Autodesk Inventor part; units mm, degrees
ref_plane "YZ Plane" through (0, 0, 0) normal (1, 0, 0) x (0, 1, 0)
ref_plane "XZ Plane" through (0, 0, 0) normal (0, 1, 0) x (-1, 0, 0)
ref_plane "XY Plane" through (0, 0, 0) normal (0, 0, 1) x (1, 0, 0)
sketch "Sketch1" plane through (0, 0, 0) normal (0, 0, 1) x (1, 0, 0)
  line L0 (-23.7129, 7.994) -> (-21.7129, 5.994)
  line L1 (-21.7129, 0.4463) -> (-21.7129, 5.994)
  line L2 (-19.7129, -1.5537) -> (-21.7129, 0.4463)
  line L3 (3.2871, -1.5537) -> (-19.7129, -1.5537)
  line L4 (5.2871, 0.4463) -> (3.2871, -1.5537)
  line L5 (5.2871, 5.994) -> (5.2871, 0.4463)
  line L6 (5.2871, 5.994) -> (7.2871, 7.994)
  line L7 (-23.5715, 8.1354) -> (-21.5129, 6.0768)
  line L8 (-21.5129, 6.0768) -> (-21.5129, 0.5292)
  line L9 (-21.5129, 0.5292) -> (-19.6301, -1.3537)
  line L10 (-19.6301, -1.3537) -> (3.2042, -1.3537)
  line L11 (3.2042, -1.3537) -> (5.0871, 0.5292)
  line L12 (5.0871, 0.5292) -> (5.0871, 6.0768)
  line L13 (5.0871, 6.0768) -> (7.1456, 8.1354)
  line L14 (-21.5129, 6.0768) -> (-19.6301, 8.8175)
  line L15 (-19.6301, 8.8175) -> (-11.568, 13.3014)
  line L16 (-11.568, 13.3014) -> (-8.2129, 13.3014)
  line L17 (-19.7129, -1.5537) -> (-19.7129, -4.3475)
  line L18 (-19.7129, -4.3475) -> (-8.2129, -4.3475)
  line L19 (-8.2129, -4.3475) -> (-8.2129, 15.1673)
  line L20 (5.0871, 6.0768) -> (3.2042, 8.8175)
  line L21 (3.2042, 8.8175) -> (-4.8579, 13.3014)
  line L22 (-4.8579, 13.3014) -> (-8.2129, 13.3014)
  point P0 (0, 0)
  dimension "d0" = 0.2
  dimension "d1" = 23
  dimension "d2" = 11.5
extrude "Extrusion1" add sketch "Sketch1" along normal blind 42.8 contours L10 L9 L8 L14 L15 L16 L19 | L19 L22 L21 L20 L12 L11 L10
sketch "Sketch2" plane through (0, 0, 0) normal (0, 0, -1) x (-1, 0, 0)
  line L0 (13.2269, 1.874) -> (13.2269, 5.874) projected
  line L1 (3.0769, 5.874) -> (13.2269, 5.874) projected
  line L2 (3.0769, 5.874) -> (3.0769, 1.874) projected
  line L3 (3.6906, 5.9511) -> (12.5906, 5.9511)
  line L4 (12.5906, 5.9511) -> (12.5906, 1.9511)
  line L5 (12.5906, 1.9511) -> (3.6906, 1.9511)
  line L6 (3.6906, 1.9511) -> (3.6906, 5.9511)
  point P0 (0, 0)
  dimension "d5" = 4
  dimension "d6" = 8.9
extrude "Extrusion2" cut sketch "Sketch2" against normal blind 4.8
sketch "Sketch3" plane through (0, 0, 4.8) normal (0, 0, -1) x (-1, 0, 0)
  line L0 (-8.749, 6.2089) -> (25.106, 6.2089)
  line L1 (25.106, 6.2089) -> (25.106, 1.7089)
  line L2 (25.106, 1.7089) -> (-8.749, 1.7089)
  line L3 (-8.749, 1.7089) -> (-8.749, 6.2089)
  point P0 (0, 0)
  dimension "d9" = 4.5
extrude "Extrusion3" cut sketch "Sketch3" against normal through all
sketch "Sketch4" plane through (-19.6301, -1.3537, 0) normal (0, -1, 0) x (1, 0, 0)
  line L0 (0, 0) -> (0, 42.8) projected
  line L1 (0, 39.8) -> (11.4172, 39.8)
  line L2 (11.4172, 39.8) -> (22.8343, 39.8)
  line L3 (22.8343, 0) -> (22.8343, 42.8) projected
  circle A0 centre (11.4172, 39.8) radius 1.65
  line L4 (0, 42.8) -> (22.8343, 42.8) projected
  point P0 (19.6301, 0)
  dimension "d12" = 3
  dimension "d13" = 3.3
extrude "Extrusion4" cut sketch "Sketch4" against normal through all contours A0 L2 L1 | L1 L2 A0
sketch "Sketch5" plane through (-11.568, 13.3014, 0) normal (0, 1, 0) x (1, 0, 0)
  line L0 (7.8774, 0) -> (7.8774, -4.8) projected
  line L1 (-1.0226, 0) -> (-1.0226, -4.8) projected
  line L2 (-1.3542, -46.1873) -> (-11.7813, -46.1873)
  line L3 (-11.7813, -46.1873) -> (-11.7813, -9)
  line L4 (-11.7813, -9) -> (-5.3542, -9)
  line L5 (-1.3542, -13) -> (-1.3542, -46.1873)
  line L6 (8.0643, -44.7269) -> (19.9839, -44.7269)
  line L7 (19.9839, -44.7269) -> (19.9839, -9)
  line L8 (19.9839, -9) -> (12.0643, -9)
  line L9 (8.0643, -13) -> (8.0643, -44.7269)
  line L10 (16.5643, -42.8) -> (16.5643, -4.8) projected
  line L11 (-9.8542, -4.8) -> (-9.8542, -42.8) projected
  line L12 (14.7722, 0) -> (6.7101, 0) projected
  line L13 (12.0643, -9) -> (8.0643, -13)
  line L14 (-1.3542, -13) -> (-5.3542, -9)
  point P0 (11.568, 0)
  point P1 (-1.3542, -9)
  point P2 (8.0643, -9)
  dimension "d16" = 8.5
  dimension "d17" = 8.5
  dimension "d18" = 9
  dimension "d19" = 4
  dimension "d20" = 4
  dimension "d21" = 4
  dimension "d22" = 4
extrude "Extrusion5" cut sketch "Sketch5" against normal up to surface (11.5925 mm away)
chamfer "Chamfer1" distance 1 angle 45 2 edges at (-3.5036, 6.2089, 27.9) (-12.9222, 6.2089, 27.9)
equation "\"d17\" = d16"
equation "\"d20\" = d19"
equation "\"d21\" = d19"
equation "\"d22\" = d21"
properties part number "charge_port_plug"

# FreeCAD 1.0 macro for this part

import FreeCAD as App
import Part
import Sketcher

V = App.Vector
Q = App.Units.Quantity


def edges_at(feature, points):
    """Names of the edges that pass closest to the given points."""
    edges = feature.Shape.Edges
    near = lambda p: min(range(len(edges)), key=lambda i: edges[i].distToShape(Part.Vertex(*p))[0])
    return sorted({f"Edge{near(p) + 1}" for p in points})


def add_polygon(sketch, points):
    """Adds a closed chain of lines whose ends are joined by coincident constraints."""
    first, n = sketch.GeometryCount, len(points)
    for a, b in zip(points, points[1:] + points[:1]):
        sketch.addGeometry(Part.LineSegment(App.Vector(*a, 0), App.Vector(*b, 0)), False)
    for i in range(n):
        sketch.addConstraint(Sketcher.Constraint("Coincident", first + i, 2, first + (i + 1) % n, 1))

doc = App.newDocument("Part")
params = doc.addObject("Spreadsheet::Sheet", "Params")
for row, (alias, value) in enumerate([
    ("sketch1_width", "6.71 mm"),
    ("pad1_length", "42.8 mm"),
    ("sketch2_height", "4 mm"),
    ("sketch2_width", "8.9 mm"),
    ("pocket1_length", "4.8 mm"),
    ("sketch3_height", "4.5 mm"),
    ("sketch4_diameter", "3.3 mm"),
    ("pocket4_length", "11.5925 mm"),
    ("chamfer_size", "1 mm"),
], start=1):
    params.set(f"A{row}", alias)
    params.set(f"B{row}", "=" + value)
    params.setAlias(f"B{row}", alias)

body = doc.addObject("PartDesign::Body", "Body")

# Sketch on XY plane
sketch1 = body.newObject("Sketcher::SketchObject", "Sketch")
sketch1.AttachmentSupport = (doc.getObject("XY_Plane"), [""])
sketch1.MapMode = "FlatFace"
add_polygon(sketch1, [(-19.6, -1.4), (3.2, -1.4), (5.1, 0.5), (5.1, 6.1), (3.2, 8.8), (-4.9, 13.3), (-11.6, 13.3), (-19.6, 8.8), (-21.5, 6.1), (-21.5, 0.5)])  # lines 0-9
sketch1.addConstraint(Sketcher.Constraint("Horizontal", 0))
sketch1.addConstraint(Sketcher.Constraint("Vertical", 2))
sketch1.addConstraint(Sketcher.Constraint("Horizontal", 5))
sketch1.addConstraint(Sketcher.Constraint("Vertical", 8))
sketch1.addConstraint(Sketcher.Constraint("Perpendicular", 1, 9))
sketch1.addConstraint(Sketcher.Constraint("Horizontal", 3, 2, 6, 2))
sketch1.addConstraint(Sketcher.Constraint("Horizontal", 2, 2, 7, 2))
sketch1.addConstraint(Sketcher.Constraint("Horizontal", 1, 2, 8, 2))
sketch1.addConstraint(Sketcher.Constraint("Vertical", 0, 2, 3, 2))
sketch1.addConstraint(Sketcher.Constraint("Vertical", 6, 2, 9, 2))
sketch1.addConstraint(Sketcher.Constraint("Equal", 4, 6))
sketch1.addConstraint(Sketcher.Constraint("Equal", 3, 7))
sketch1.addConstraint(Sketcher.Constraint("DistanceX", 5, 2, 5, 1, 6.71))
sketch1.addConstraint(Sketcher.Constraint("Angle", 3, Q("124.4896 deg")))
sketch1.addConstraint(Sketcher.Constraint("DistanceX", 6, 2, -1, 1, 19.63))
sketch1.addConstraint(Sketcher.Constraint("Distance", 4, 9.225))
sketch1.addConstraint(Sketcher.Constraint("Distance", 7, 3.325))
sketch1.addConstraint(Sketcher.Constraint("DistanceX", 0, 1, 0, 2, 22.8343))
sketch1.addConstraint(Sketcher.Constraint("DistanceY", 2, 1, 2, 2, 5.5476))
sketch1.addConstraint(Sketcher.Constraint("DistanceY", 0, 2, -1, 1, 1.3537))
sketch1.setExpression("Constraints[22]", "Params.sketch1_width")
pad1 = body.newObject("PartDesign::Pad", "Pad")
pad1.Profile = sketch1
pad1.setExpression("Length", "Params.pad1_length")

# Sketch on XY plane
sketch2 = body.newObject("Sketcher::SketchObject", "Sketch001")
sketch2.AttachmentSupport = (doc.getObject("XY_Plane"), [""])
sketch2.MapMode = "FlatFace"
add_polygon(sketch2, [(-3.7, 6), (-3.7, 2), (-12.6, 2), (-12.6, 6)])  # lines 0-3
sketch2.addConstraint(Sketcher.Constraint("Vertical", 0))
sketch2.addConstraint(Sketcher.Constraint("Horizontal", 1))
sketch2.addConstraint(Sketcher.Constraint("Vertical", 2))
sketch2.addConstraint(Sketcher.Constraint("Horizontal", 3))
sketch2.addConstraint(Sketcher.Constraint("DistanceY", 0, 2, 0, 1, 4.0))
sketch2.addConstraint(Sketcher.Constraint("DistanceX", 1, 2, 1, 1, 8.9))
sketch2.addConstraint(Sketcher.Constraint("DistanceY", -1, 1, 0, 2, 1.951))
sketch2.addConstraint(Sketcher.Constraint("DistanceX", 0, 2, -1, 1, 3.6906))
sketch2.setExpression("Constraints[8]", "Params.sketch2_height")
sketch2.setExpression("Constraints[9]", "Params.sketch2_width")
pocket1 = body.newObject("PartDesign::Pocket", "Pocket")
pocket1.Profile = sketch2
pocket1.setExpression("Length", "Params.pocket1_length")
pocket1.Reversed = True

# Sketch on XY plane
sketch3 = body.newObject("Sketcher::SketchObject", "Sketch002")
sketch3.AttachmentSupport = (doc.getObject("XY_Plane"), [""])
sketch3.MapMode = "FlatFace"
sketch3.AttachmentOffset = App.Placement(V(0, 0, 4.8), App.Rotation())
add_polygon(sketch3, [(-25.1, 6.2), (8.7, 6.2), (8.7, 1.7), (-25.1, 1.7)])  # lines 0-3
sketch3.addConstraint(Sketcher.Constraint("Horizontal", 0))
sketch3.addConstraint(Sketcher.Constraint("Vertical", 1))
sketch3.addConstraint(Sketcher.Constraint("Horizontal", 2))
sketch3.addConstraint(Sketcher.Constraint("Vertical", 3))
sketch3.addConstraint(Sketcher.Constraint("DistanceY", 1, 2, 1, 1, 4.5))
sketch3.addConstraint(Sketcher.Constraint("DistanceX", 0, 1, 0, 2, 33.855))
sketch3.addConstraint(Sketcher.Constraint("DistanceX", -1, 1, 0, 2, 8.749))
sketch3.addConstraint(Sketcher.Constraint("DistanceY", -1, 1, 0, 2, 6.209))
sketch3.setExpression("Constraints[8]", "Params.sketch3_height")
pocket2 = body.newObject("PartDesign::Pocket", "Pocket001")
pocket2.Profile = sketch3
pocket2.Type = "ThroughAll"
pocket2.Reversed = True

# Sketch on XZ plane
sketch4 = body.newObject("Sketcher::SketchObject", "Sketch003")
sketch4.AttachmentSupport = (doc.getObject("XZ_Plane"), [""])
sketch4.MapMode = "FlatFace"
sketch4.AttachmentOffset = App.Placement(V(0, 0, 1.3537), App.Rotation())
sketch4.addGeometry(Part.Circle(V(-8.2, 39.8, 0), V(0, 0, 1), 1.6), False)
sketch4.addConstraint(Sketcher.Constraint("Diameter", 0, 3.3))
sketch4.addConstraint(Sketcher.Constraint("DistanceY", -1, 1, 0, 3, 39.8))
sketch4.addConstraint(Sketcher.Constraint("DistanceX", 0, 3, -1, 1, 8.213))
sketch4.setExpression("Constraints[0]", "Params.sketch4_diameter")
pocket3 = body.newObject("PartDesign::Pocket", "Pocket002")
pocket3.Profile = sketch4
pocket3.Type = "ThroughAll"

# Sketch on XZ plane
sketch5 = body.newObject("Sketcher::SketchObject", "Sketch004")
sketch5.AttachmentSupport = (doc.getObject("XZ_Plane"), [""])
sketch5.MapMode = "FlatFace"
sketch5.AttachmentOffset = App.Placement(V(0, 0, -13.3014), App.Rotation())
add_polygon(sketch5, [(-23, 46), (-13, 46), (-13, 13), (-17, 9), (-23, 9)])  # lines 0-4
add_polygon(sketch5, [(-4, 13), (-4, 45), (8, 45), (8, 9), (0, 9)])  # lines 5-9
sketch5.addConstraint(Sketcher.Constraint("Horizontal", 0))
sketch5.addConstraint(Sketcher.Constraint("Vertical", 1))
sketch5.addConstraint(Sketcher.Constraint("Horizontal", 3))
sketch5.addConstraint(Sketcher.Constraint("Vertical", 4))
sketch5.addConstraint(Sketcher.Constraint("Vertical", 5))
sketch5.addConstraint(Sketcher.Constraint("Horizontal", 6))
sketch5.addConstraint(Sketcher.Constraint("Vertical", 7))
sketch5.addConstraint(Sketcher.Constraint("Horizontal", 8))
sketch5.addConstraint(Sketcher.Constraint("Perpendicular", 2, 9))
sketch5.addConstraint(Sketcher.Constraint("Horizontal", 3, 2, 7, 2))
sketch5.addConstraint(Sketcher.Constraint("Horizontal", 1, 2, 9, 2))
sketch5.addConstraint(Sketcher.Constraint("Equal", 2, 9))
sketch5.addConstraint(Sketcher.Constraint("DistanceY", -1, 1, 2, 2, 9.0))
sketch5.addConstraint(Sketcher.Constraint("DistanceX", 2, 2, 1, 2, 4.0))
sketch5.addConstraint(Sketcher.Constraint("DistanceX", 0, 1, 0, 2, 10.427))
sketch5.addConstraint(Sketcher.Constraint("DistanceY", 5, 1, 5, 2, 31.727))
sketch5.addConstraint(Sketcher.Constraint("DistanceX", 6, 1, 6, 2, 11.9196))
sketch5.addConstraint(Sketcher.Constraint("DistanceY", 1, 2, 1, 1, 33.1873))
sketch5.addConstraint(Sketcher.Constraint("DistanceX", -1, 1, 6, 2, 8.416))
sketch5.addConstraint(Sketcher.Constraint("DistanceX", 0, 2, 6, 2, 21.338))
pocket4 = body.newObject("PartDesign::Pocket", "Pocket003")
pocket4.Profile = sketch5
pocket4.setExpression("Length", "Params.pocket4_length")
pocket4.Reversed = True
doc.recompute()

chamfer = body.newObject("PartDesign::Chamfer", "Chamfer")
chamfer.Base = (pocket4, edges_at(pocket4, [(-3.504, 6.209, 27.9), (-12.922, 6.209, 27.9)]))
chamfer.setExpression("Size", "Params.chamfer_size")

doc.recompute()
